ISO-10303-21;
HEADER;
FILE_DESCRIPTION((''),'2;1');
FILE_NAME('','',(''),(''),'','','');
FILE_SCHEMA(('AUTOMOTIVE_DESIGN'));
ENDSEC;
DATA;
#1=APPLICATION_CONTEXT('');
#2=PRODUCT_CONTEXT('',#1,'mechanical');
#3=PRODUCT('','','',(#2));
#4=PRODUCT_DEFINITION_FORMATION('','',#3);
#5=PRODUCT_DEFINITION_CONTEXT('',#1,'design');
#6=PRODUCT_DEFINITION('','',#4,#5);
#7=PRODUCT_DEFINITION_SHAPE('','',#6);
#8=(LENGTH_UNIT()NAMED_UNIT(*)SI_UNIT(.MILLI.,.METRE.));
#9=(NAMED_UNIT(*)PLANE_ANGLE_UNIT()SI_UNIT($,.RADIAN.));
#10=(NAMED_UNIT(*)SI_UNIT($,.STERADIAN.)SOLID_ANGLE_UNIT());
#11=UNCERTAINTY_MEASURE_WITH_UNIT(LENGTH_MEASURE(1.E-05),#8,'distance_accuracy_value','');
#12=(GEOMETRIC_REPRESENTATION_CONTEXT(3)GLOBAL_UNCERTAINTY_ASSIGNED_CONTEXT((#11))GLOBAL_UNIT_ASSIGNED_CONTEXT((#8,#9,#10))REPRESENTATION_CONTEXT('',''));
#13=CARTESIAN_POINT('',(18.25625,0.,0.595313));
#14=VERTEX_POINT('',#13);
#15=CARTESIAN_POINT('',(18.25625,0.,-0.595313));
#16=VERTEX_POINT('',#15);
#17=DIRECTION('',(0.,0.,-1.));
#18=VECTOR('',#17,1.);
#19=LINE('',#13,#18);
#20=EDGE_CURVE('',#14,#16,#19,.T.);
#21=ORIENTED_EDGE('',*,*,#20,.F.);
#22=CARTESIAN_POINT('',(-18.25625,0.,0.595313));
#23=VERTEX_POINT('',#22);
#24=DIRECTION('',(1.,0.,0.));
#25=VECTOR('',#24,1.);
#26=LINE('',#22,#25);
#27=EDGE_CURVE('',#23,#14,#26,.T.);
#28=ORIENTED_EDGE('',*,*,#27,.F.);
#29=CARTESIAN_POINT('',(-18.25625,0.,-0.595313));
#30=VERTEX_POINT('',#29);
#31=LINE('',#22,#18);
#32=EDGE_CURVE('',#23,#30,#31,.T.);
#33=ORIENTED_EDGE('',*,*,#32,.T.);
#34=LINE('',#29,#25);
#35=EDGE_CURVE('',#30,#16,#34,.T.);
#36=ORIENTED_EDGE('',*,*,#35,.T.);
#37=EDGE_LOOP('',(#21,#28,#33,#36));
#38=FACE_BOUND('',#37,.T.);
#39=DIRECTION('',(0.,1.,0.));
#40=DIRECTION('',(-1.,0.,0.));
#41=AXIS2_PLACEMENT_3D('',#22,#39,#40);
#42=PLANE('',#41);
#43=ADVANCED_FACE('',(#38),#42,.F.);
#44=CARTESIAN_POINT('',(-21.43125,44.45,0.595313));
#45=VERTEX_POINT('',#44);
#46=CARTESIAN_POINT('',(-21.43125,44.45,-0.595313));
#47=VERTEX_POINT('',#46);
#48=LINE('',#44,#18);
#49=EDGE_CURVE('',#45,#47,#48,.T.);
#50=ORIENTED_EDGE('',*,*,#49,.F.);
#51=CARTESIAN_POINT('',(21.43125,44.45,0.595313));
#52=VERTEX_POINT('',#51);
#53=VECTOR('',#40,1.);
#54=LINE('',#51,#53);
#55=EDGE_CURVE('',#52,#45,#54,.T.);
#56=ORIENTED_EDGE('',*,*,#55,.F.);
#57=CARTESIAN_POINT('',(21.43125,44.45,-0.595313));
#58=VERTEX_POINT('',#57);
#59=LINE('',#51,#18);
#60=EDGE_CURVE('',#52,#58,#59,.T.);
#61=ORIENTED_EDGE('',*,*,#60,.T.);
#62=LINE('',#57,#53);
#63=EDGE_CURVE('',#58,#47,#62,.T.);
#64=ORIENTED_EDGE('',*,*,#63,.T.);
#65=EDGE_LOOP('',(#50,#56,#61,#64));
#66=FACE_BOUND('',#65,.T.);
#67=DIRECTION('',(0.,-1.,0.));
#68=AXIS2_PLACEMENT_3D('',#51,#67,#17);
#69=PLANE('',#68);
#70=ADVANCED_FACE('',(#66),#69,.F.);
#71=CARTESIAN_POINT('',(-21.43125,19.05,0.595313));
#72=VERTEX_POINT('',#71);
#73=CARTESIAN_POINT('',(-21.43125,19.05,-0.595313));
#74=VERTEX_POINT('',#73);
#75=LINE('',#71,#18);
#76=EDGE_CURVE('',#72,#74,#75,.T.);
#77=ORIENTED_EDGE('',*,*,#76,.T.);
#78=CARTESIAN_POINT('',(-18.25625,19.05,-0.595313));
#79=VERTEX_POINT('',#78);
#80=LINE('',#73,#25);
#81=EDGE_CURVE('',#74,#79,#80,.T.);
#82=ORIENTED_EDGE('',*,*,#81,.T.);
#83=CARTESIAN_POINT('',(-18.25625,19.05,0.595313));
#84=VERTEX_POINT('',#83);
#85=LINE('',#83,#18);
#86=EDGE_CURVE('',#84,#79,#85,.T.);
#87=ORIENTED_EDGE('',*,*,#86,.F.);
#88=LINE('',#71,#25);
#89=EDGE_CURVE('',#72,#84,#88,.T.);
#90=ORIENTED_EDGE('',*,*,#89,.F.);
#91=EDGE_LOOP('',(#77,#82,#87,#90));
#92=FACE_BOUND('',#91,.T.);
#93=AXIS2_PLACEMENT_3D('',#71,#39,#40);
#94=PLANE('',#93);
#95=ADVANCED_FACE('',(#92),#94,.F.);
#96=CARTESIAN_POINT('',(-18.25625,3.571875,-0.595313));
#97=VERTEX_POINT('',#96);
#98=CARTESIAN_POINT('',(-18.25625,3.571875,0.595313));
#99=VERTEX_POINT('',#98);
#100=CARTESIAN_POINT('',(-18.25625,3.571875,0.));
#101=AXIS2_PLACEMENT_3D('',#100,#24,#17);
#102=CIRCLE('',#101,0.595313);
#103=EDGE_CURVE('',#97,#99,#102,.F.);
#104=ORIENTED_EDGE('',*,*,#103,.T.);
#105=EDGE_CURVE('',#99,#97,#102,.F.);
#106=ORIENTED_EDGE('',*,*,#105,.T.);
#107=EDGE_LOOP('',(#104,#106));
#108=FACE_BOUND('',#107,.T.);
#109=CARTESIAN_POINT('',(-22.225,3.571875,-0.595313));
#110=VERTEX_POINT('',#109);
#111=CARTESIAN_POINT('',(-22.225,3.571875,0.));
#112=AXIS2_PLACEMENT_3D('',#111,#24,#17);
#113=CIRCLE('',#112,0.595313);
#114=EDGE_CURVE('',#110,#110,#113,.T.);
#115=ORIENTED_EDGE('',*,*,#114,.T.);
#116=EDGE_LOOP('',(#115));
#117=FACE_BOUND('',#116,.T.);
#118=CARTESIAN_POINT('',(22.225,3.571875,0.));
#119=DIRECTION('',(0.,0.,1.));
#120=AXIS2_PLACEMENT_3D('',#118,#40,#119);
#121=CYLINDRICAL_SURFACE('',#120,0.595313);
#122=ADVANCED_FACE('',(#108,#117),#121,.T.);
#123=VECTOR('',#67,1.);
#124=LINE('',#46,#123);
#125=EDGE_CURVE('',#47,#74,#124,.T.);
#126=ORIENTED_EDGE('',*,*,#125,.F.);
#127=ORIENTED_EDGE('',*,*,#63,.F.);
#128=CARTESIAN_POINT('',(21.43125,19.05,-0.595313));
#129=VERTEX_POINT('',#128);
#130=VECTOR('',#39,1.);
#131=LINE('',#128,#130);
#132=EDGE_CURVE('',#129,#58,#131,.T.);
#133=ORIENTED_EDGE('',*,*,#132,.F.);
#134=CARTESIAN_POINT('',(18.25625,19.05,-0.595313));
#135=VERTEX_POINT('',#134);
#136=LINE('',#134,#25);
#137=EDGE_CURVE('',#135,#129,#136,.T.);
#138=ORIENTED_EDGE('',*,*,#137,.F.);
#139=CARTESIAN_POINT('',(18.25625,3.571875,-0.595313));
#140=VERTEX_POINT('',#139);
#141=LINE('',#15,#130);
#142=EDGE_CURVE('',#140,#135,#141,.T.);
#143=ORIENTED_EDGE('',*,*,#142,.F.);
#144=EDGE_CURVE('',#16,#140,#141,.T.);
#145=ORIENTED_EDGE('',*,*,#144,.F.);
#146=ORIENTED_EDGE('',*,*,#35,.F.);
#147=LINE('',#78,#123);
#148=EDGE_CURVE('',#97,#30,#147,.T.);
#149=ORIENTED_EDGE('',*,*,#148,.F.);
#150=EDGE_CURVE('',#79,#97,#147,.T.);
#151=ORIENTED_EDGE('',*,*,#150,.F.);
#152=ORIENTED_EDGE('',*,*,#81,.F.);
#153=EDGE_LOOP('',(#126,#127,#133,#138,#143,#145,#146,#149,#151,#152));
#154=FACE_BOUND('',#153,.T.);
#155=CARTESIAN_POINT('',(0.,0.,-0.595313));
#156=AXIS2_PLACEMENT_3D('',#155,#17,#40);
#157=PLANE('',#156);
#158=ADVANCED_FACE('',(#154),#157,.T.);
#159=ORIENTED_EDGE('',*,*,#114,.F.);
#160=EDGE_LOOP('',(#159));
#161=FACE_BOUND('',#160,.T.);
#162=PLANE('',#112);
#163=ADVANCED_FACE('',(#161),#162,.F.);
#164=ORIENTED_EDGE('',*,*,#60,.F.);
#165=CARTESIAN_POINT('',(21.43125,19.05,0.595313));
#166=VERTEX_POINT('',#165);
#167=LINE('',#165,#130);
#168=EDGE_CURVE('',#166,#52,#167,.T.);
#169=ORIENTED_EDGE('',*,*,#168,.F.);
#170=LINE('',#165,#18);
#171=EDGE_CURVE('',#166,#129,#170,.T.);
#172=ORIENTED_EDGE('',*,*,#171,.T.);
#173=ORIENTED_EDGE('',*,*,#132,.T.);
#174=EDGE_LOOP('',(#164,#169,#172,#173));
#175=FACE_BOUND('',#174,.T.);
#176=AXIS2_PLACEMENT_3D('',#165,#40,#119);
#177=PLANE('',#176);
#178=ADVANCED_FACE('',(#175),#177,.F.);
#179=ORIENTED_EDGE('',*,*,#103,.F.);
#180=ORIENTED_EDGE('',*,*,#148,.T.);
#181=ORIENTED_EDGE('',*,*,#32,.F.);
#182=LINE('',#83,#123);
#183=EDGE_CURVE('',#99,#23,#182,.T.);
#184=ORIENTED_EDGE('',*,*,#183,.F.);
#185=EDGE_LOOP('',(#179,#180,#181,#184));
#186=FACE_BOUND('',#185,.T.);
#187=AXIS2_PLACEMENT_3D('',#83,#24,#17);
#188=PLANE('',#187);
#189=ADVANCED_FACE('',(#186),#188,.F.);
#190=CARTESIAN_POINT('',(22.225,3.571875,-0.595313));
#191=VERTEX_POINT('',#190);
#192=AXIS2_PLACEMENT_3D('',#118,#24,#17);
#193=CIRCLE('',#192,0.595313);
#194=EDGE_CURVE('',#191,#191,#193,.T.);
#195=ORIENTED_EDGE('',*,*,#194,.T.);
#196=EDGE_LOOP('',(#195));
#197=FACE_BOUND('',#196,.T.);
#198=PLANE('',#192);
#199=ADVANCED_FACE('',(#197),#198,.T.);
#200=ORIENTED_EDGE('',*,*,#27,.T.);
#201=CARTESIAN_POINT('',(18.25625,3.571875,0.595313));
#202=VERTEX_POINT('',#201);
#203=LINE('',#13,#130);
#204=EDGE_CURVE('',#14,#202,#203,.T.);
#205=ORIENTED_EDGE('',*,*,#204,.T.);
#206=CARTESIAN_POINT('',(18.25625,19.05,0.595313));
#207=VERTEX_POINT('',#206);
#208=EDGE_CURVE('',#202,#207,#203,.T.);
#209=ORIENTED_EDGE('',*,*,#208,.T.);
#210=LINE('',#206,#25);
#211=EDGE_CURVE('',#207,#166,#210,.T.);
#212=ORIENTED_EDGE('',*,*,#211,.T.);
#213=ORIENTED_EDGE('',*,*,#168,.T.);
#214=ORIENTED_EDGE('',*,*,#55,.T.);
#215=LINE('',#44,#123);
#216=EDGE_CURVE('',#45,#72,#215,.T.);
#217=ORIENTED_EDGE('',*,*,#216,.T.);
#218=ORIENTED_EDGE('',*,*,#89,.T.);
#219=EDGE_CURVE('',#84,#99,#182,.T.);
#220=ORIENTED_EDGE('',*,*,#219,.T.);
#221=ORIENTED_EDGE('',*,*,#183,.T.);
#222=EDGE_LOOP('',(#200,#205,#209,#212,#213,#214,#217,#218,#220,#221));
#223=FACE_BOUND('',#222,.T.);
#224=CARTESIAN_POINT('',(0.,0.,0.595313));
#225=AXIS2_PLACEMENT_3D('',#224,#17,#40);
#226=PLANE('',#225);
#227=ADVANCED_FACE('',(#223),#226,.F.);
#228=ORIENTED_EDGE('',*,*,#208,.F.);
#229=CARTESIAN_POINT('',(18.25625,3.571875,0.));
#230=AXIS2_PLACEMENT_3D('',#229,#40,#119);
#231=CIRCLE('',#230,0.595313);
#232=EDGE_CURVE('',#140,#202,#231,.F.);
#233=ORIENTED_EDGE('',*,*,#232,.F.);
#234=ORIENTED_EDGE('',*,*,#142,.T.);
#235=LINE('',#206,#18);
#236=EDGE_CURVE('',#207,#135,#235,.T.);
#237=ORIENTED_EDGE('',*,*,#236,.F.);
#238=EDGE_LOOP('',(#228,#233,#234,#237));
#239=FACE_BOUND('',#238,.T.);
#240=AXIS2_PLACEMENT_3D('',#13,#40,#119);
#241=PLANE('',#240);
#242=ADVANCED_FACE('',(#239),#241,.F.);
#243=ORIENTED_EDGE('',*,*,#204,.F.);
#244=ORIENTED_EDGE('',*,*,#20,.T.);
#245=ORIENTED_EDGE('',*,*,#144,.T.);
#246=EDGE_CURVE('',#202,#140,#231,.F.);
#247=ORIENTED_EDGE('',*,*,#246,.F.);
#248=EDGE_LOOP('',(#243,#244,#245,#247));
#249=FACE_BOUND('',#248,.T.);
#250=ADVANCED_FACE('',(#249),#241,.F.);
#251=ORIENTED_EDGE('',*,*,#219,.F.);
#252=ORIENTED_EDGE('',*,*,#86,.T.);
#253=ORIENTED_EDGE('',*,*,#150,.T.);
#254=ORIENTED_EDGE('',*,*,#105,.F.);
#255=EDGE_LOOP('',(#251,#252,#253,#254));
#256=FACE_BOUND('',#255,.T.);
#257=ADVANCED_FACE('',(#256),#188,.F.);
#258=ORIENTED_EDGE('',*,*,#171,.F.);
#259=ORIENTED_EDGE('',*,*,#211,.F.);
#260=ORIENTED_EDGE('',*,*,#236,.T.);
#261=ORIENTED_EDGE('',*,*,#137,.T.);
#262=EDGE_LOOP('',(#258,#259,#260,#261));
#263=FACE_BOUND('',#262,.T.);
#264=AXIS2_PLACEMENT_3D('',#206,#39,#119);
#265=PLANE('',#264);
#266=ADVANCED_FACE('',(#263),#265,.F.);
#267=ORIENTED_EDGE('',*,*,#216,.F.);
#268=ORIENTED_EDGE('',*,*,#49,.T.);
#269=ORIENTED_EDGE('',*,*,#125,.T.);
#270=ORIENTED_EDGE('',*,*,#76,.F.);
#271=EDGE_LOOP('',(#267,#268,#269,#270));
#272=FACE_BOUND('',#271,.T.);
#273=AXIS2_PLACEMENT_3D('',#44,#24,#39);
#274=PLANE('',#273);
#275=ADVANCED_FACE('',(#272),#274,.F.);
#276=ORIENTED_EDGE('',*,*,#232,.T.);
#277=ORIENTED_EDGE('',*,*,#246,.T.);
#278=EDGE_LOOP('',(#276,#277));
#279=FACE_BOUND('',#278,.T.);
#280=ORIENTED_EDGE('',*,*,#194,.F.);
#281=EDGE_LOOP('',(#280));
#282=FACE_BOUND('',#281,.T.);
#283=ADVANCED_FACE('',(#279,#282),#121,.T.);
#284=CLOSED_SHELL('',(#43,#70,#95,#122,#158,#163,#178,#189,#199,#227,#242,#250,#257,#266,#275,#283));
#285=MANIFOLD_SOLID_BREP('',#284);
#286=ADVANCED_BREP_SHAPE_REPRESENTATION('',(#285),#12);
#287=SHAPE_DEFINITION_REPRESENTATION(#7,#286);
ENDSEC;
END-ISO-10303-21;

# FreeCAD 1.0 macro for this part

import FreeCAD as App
import Part
import Sketcher
Q = App.Units.Quantity

doc = App.newDocument("Part")
body = doc.addObject("PartDesign::Body", "Body")

# Sketch on XY plane
sketch1 = body.newObject("Sketcher::SketchObject", "Sketch")
sketch1.AttachmentSupport = (doc.getObject("XY_Plane"), [""])
sketch1.MapMode = "FlatFace"
sketch1.addGeometry([
    Part.LineSegment(App.Vector(-18.3, 0, 0), App.Vector(18.3, 0, 0)),  # 0
    Part.LineSegment(App.Vector(18.3, 0, 0), App.Vector(18.3, 19.1, 0)),  # 1
    Part.LineSegment(App.Vector(18.3, 19.1, 0), App.Vector(21.4, 19.1, 0)),  # 2
    Part.LineSegment(App.Vector(21.4, 19.1, 0), App.Vector(21.4, 44.5, 0)),  # 3
    Part.LineSegment(App.Vector(21.4, 44.5, 0), App.Vector(-21.4, 44.5, 0)),  # 4
    Part.LineSegment(App.Vector(-21.4, 44.5, 0), App.Vector(-21.4, 19.1, 0)),  # 5
    Part.LineSegment(App.Vector(-21.4, 19.1, 0), App.Vector(-18.3, 19.1, 0)),  # 6
    Part.LineSegment(App.Vector(-18.3, 19.1, 0), App.Vector(-18.3, 0, 0)),  # 7
], False)
sketch1.addConstraint([
    Sketcher.Constraint("Coincident", 0, 2, 1, 1),
    Sketcher.Constraint("Coincident", 1, 2, 2, 1),
    Sketcher.Constraint("Coincident", 2, 2, 3, 1),
    Sketcher.Constraint("Coincident", 3, 2, 4, 1),
    Sketcher.Constraint("Coincident", 4, 2, 5, 1),
    Sketcher.Constraint("Coincident", 5, 2, 6, 1),
    Sketcher.Constraint("Coincident", 6, 2, 7, 1),
    Sketcher.Constraint("Coincident", 7, 2, 0, 1),
    Sketcher.Constraint("Horizontal", 0),
    Sketcher.Constraint("Vertical", 1),
    Sketcher.Constraint("Horizontal", 2),
    Sketcher.Constraint("Vertical", 3),
    Sketcher.Constraint("Horizontal", 4),
    Sketcher.Constraint("Vertical", 5),
    Sketcher.Constraint("Horizontal", 6),
    Sketcher.Constraint("Vertical", 7),
    Sketcher.Constraint("Symmetric", 0, 2, 7, 2, -1, 1),
    Sketcher.Constraint("Symmetric", 2, 2, 5, 2, -2),
    Sketcher.Constraint("DistanceY", 3, 1, 3, 2, Q("1 in")),
    Sketcher.Constraint("DistanceY", 1, 1, 1, 2, Q("0.75 in")),
    Sketcher.Constraint("DistanceX", 0, 1, 0, 2, Q("1.4375 in")),
    Sketcher.Constraint("DistanceX", 2, 1, 2, 2, Q("0.125 in")),
])
pad1 = body.newObject("PartDesign::Pad", "Pad")
pad1.Profile = sketch1
pad1.Length = Q("0.046875 in")
pad1.Midplane = True

# Sketch on YZ plane
sketch2 = body.newObject("Sketcher::SketchObject", "Sketch001")
sketch2.AttachmentSupport = (doc.getObject("YZ_Plane"), [""])
sketch2.MapMode = "FlatFace"
sketch2.addGeometry(Part.Circle(App.Vector(3.6, 0, 0), App.Vector(0, 0, 1), 0.6), False)
sketch2.addConstraint([
    Sketcher.Constraint("PointOnObject", 0, 3, -1),
    Sketcher.Constraint("Diameter", 0, Q("0.046875 in")),
    Sketcher.Constraint("DistanceX", -1, 1, 0, 3, Q("0.140625 in")),
])
pad2 = body.newObject("PartDesign::Pad", "Pad001")
pad2.Profile = sketch2
pad2.Length = Q("1.75 in")
pad2.Midplane = True

doc.recompute()
